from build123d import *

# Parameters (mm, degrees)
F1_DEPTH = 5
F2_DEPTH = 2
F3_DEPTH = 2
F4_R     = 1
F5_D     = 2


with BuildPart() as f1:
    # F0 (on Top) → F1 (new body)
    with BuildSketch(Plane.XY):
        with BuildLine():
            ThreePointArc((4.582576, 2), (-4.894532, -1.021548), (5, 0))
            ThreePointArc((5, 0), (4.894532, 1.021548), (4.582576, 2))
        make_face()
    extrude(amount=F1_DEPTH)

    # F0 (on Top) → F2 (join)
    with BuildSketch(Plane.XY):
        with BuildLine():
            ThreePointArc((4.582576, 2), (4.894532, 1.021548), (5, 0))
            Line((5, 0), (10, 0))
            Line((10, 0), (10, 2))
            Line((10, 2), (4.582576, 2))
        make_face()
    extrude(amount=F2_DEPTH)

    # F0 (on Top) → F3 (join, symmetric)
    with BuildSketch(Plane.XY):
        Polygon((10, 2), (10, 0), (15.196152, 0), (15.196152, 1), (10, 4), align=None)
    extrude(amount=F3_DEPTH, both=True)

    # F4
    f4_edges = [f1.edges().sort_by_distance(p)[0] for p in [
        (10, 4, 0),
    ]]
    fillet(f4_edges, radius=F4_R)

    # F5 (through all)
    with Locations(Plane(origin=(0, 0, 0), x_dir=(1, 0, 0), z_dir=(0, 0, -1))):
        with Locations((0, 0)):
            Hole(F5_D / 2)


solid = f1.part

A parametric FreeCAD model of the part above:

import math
import FreeCAD as App
import Part
import Sketcher

V = App.Vector
Q = App.Units.Quantity


def edges_at(feature, points):
    """Names of the edges that pass closest to the given points."""
    edges = feature.Shape.Edges
    near = lambda p: min(range(len(edges)), key=lambda i: edges[i].distToShape(Part.Vertex(*p))[0])
    return sorted({f"Edge{near(p) + 1}" for p in points})


def add_polygon(sketch, points):
    """Adds a closed chain of lines whose ends are joined by coincident constraints."""
    first, n = sketch.GeometryCount, len(points)
    for a, b in zip(points, points[1:] + points[:1]):
        sketch.addGeometry(Part.LineSegment(App.Vector(*a, 0), App.Vector(*b, 0)), False)
    for i in range(n):
        sketch.addConstraint(Sketcher.Constraint("Coincident", first + i, 2, first + (i + 1) % n, 1))

doc = App.newDocument("Part")
body = doc.addObject("PartDesign::Body", "Body")

sketch1 = doc.addObject("Sketcher::SketchObject", "Sketch")
body.addObject(sketch1)
sketch1.AttachmentSupport = (doc.XY_Plane, [""])
sketch1.MapMode = "FlatFace"
sketch1.addGeometry([
    Part.ArcOfCircle(Part.Circle(V(0, 0.000001, 0), V(0, 0, 1), 5), math.radians(23.578169), math.radians(359.999993)),
    Part.ArcOfCircle(Part.Circle(V(0.000011, 0.000003, 0), V(0, 0, 1), 4.999989), math.radians(-0.000035), math.radians(23.578196)),
], False)
sketch1.addConstraint([
    Sketcher.Constraint("Tangent", 0, 1, 1, 2),
    Sketcher.Constraint("Coincident", 1, 1, 0, 2),
    Sketcher.Constraint("Coincident", 0, 3, -1, 1),
    Sketcher.Constraint("PointOnObject", 1, 1, -1),
    Sketcher.Constraint("Radius", 0, 5.0),
    Sketcher.Constraint("DistanceY", -1, 1, 0, 1, 2.0),
])
pad1 = doc.addObject("PartDesign::Pad", "Pad")
body.addObject(pad1)
pad1.Profile = sketch1
pad1.Length = 5

sketch2 = doc.addObject("Sketcher::SketchObject", "Sketch001")
body.addObject(sketch2)
sketch2.AttachmentSupport = (doc.XY_Plane, [""])
sketch2.MapMode = "FlatFace"
sketch2.addGeometry([
    Part.ArcOfCircle(Part.Circle(V(0.000011, 0.000003, 0), V(0, 0, 1), 4.999989), math.radians(-0.000035), math.radians(23.578196)),
    Part.LineSegment(V(5, 0, 0), V(10, 0, 0)),
    Part.LineSegment(V(10, 0, 0), V(10, 2, 0)),
    Part.LineSegment(V(10, 2, 0), V(4.582576, 2, 0)),
], False)
sketch2.addConstraint([
    Sketcher.Constraint("Coincident", 0, 1, 1, 1),
    Sketcher.Constraint("Coincident", 1, 2, 2, 1),
    Sketcher.Constraint("Coincident", 2, 2, 3, 1),
    Sketcher.Constraint("Coincident", 3, 2, 0, 2),
    Sketcher.Constraint("Horizontal", 1),
    Sketcher.Constraint("Vertical", 2),
    Sketcher.Constraint("Horizontal", 3),
    Sketcher.Constraint("PointOnObject", 0, 1, -1),
    Sketcher.Constraint("DistanceX", 1, 1, 1, 2, 5.0),
    Sketcher.Constraint("DistanceY", 2, 1, 2, 2, 2.0),
    Sketcher.Constraint("DistanceX", -1, 1, 0, 1, 5.0),
    Sketcher.Constraint("Radius", 0, 4.999989),
    Sketcher.Constraint("DistanceX", 3, 2, 3, 1, 5.417424),
])
pad2 = doc.addObject("PartDesign::Pad", "Pad001")
body.addObject(pad2)
pad2.Profile = sketch2
pad2.Length = 2

sketch3 = doc.addObject("Sketcher::SketchObject", "Sketch002")
body.addObject(sketch3)
sketch3.AttachmentSupport = (doc.XY_Plane, [""])
sketch3.MapMode = "FlatFace"
add_polygon(sketch3, [(10, 0), (15.196152, 0), (15.196152, 1), (10, 4)])
sketch3.addConstraint([
    Sketcher.Constraint("Horizontal", 0),
    Sketcher.Constraint("Vertical", 1),
    Sketcher.Constraint("Vertical", 3),
    Sketcher.Constraint("PointOnObject", 0, 2, -1),
    Sketcher.Constraint("DistanceY", 1, 1, 1, 2, 1.0),
    Sketcher.Constraint("DistanceY", 3, 2, 3, 1, 4.0),
    Sketcher.Constraint("Angle", 2, Q("149.999998 deg")),
    Sketcher.Constraint("DistanceX", -1, 1, 2, 2, 10.0),
])
pad3 = doc.addObject("PartDesign::Pad", "Pad002")
body.addObject(pad3)
pad3.Profile = sketch3
pad3.Length = 4
pad3.Midplane = True
doc.recompute()

fillet = doc.addObject("PartDesign::Fillet", "Fillet")
body.addObject(fillet)
fillet.Base = (pad3, edges_at(pad3, [(10, 4, 0)]))
fillet.Radius = 1

sketch4 = doc.addObject("Sketcher::SketchObject", "Sketch003")
body.addObject(sketch4)
sketch4.AttachmentSupport = (doc.XY_Plane, [""])
sketch4.MapMode = "FlatFace"
sketch4.addGeometry(Part.Circle(V(0, 0, 0), V(0, 0, 1), 1), False)
sketch4.addConstraint([
    Sketcher.Constraint("Coincident", 0, 3, -1, 1),
    Sketcher.Constraint("Diameter", 0, 2.0),
])
doc.recompute()
hole = doc.addObject("PartDesign::Hole", "Hole")
body.addObject(hole)
hole.Profile = sketch4
hole.ThreadType = "None"
hole.Diameter = 2
hole.DepthType = "ThroughAll"
hole.Reversed = True

doc.recompute()
